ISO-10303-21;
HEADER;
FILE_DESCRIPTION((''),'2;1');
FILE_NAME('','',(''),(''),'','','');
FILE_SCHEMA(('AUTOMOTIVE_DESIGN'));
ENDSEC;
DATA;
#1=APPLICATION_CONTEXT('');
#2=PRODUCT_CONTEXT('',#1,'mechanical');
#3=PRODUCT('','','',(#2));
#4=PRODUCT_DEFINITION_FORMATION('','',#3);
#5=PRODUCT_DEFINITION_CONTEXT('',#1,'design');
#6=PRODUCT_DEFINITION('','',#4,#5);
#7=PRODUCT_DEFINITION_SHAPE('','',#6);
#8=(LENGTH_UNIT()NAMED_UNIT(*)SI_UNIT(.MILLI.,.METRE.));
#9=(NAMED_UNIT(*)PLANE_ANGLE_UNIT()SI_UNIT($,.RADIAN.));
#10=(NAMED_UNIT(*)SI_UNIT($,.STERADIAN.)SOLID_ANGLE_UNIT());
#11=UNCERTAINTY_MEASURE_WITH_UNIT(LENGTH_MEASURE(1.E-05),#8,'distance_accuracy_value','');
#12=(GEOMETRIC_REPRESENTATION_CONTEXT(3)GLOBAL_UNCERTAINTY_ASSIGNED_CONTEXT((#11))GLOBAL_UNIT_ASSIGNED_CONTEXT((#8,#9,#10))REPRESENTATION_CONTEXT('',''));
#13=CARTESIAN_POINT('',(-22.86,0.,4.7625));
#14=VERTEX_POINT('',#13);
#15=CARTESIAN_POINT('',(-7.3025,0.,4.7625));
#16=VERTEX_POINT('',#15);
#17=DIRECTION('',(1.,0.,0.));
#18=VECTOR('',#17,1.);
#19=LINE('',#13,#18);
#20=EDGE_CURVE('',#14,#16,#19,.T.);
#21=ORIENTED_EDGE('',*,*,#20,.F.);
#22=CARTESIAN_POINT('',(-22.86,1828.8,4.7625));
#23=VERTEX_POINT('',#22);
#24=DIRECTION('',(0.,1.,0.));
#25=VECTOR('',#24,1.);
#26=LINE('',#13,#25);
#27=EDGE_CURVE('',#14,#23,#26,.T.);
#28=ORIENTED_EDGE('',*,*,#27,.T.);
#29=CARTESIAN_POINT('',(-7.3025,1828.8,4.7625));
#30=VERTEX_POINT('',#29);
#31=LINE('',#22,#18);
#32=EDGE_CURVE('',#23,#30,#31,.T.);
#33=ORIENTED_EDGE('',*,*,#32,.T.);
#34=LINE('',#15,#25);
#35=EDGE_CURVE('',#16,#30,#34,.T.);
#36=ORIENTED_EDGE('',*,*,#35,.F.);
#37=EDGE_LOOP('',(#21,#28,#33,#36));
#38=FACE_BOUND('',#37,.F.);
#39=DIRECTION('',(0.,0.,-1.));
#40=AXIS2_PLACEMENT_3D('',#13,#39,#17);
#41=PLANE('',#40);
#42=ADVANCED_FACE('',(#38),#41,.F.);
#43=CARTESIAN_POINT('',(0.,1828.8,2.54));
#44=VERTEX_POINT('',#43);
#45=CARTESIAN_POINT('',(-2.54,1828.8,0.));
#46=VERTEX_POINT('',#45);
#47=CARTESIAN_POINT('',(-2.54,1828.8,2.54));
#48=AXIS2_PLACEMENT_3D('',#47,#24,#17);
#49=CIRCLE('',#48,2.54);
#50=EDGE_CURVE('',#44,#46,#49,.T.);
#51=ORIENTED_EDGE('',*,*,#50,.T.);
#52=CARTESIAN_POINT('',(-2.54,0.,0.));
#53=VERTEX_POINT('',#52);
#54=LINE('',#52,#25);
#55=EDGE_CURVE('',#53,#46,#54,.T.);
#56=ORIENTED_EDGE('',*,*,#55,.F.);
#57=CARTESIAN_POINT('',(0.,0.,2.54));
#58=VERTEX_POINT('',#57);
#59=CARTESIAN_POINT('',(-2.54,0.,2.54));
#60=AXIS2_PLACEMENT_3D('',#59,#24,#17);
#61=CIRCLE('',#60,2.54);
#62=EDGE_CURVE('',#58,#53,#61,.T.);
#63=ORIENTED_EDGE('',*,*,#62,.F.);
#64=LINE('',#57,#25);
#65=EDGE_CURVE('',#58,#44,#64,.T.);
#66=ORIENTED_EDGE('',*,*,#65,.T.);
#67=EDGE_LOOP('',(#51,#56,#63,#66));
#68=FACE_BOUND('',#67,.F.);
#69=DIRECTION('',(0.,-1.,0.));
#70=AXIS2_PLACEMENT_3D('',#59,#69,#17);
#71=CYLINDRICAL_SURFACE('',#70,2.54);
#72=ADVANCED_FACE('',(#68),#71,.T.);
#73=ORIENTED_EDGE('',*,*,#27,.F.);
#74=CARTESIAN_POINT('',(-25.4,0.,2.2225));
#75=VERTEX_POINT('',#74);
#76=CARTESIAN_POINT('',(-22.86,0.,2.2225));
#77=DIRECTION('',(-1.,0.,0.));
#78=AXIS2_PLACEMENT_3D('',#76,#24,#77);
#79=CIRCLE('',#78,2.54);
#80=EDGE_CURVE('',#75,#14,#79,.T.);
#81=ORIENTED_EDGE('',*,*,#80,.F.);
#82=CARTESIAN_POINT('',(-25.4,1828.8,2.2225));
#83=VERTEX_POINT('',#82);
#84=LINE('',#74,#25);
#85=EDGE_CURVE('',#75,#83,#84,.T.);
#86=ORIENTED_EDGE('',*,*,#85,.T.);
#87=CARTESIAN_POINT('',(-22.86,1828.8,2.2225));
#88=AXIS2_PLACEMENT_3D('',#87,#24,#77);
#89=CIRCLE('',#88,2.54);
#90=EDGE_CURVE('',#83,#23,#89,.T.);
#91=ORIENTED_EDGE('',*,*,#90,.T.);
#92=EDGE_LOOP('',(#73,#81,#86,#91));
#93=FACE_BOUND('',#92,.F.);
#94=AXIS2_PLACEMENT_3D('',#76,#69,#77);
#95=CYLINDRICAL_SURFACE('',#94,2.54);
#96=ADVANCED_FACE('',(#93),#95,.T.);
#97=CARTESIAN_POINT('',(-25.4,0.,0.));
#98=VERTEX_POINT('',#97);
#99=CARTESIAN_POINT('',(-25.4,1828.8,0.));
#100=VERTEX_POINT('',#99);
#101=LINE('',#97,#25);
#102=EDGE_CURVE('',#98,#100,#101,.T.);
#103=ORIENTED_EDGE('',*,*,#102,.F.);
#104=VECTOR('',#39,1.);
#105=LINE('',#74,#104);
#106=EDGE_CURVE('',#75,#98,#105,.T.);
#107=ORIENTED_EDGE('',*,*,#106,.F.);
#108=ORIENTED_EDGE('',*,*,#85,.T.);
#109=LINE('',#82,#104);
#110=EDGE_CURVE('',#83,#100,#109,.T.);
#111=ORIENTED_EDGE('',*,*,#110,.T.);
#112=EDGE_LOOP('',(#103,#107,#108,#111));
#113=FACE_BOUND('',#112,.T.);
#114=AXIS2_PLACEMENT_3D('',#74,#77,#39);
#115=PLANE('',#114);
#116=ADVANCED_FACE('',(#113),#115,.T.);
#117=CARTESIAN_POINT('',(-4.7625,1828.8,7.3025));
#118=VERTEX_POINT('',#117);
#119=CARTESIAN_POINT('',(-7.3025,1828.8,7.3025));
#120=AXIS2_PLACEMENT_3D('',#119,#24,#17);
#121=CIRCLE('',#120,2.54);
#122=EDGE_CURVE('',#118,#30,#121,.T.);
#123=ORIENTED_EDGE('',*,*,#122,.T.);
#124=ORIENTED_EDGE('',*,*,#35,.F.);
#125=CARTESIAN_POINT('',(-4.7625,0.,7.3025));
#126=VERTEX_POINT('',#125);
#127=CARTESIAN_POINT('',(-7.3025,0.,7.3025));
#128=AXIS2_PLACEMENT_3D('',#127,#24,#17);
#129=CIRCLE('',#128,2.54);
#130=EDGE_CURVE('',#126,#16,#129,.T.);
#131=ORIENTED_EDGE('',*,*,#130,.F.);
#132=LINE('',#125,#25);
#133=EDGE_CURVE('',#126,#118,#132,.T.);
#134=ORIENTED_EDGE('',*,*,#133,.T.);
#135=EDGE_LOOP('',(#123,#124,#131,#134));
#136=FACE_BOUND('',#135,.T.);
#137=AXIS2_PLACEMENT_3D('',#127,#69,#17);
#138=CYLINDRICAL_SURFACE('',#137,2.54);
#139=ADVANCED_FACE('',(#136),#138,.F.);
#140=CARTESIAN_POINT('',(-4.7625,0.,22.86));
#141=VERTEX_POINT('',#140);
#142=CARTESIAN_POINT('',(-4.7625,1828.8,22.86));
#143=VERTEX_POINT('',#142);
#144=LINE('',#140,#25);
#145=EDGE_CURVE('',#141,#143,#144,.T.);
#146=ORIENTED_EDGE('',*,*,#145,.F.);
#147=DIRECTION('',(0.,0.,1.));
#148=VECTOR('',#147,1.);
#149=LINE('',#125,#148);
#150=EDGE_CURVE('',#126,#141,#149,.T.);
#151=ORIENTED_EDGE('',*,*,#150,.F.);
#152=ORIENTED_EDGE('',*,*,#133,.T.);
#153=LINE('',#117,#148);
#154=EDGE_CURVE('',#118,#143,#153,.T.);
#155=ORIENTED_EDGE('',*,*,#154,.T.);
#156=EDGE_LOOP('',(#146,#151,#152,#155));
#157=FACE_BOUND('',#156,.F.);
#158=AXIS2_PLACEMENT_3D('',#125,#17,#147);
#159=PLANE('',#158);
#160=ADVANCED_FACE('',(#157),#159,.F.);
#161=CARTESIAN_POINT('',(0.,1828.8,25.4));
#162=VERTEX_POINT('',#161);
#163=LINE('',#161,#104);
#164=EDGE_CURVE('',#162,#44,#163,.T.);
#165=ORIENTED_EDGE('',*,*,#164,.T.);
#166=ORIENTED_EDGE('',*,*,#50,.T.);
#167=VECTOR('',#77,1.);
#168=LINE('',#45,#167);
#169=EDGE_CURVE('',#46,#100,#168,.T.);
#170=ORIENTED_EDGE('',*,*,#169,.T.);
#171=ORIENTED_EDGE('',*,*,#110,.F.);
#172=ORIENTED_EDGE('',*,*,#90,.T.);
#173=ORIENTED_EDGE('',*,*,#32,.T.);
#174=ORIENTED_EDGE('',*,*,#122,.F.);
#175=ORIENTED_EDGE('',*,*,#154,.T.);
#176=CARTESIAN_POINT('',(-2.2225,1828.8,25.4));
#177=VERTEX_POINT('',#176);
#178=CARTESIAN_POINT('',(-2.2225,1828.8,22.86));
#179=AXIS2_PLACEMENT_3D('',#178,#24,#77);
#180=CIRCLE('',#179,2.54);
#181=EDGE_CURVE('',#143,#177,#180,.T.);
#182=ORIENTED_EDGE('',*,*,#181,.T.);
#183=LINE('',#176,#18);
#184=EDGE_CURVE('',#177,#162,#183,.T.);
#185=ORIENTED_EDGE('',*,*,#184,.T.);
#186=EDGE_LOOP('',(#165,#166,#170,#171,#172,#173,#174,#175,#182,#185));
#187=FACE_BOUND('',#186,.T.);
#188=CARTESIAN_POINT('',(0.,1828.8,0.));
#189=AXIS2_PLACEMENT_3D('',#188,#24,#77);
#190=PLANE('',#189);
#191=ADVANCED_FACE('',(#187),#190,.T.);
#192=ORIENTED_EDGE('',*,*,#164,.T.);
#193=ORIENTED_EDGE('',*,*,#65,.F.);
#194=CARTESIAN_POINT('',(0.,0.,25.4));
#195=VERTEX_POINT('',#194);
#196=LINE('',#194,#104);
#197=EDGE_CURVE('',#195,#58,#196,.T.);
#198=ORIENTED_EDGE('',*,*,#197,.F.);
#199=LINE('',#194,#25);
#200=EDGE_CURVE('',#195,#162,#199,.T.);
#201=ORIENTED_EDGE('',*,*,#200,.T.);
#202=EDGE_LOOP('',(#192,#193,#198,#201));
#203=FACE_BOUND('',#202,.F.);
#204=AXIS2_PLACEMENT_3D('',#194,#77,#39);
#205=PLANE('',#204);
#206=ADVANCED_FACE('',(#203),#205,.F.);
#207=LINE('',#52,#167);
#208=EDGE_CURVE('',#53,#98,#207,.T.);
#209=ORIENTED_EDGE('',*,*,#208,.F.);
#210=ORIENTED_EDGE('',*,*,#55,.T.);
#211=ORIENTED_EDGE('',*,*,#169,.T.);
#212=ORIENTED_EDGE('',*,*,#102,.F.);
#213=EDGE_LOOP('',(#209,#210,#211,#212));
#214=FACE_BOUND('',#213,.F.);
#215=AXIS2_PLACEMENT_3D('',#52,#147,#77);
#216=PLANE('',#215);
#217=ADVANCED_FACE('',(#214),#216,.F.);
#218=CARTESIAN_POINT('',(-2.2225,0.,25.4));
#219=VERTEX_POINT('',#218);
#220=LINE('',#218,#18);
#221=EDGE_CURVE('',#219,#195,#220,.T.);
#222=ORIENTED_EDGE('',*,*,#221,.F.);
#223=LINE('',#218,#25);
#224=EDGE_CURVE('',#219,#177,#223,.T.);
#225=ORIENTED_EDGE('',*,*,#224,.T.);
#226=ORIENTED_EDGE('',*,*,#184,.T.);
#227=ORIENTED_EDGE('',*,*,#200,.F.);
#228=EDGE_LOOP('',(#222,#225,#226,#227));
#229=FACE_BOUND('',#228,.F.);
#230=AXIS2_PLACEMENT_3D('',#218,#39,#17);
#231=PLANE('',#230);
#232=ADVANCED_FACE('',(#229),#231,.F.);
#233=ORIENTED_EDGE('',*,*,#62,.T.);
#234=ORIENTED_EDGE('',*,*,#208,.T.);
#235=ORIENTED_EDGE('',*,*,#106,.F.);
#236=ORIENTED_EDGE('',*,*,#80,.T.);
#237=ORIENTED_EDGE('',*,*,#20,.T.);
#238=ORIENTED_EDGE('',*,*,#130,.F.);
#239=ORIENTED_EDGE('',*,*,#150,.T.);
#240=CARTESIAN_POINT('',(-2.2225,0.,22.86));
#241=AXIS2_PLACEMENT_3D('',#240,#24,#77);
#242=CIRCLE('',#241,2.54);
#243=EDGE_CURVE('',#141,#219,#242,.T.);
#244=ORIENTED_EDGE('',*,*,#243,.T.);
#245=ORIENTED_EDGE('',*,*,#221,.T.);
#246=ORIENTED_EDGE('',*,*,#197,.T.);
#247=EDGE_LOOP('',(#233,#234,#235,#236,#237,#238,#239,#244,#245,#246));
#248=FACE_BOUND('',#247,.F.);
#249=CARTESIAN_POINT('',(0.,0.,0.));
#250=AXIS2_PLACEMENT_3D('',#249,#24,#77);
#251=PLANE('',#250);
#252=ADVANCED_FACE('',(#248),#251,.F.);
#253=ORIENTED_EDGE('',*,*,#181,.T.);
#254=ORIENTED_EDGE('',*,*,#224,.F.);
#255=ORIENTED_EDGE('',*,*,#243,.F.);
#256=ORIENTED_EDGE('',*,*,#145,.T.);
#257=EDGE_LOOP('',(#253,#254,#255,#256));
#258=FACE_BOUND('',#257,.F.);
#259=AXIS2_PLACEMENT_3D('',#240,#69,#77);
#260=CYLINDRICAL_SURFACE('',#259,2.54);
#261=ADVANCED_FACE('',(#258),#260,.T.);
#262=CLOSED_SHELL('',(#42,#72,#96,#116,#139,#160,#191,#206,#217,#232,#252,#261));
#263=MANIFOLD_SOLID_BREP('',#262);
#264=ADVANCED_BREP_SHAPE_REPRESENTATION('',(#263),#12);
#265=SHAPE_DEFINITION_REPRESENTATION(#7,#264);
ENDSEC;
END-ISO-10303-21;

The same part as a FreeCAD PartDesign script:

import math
import FreeCAD as App
import Part
import Sketcher

V = App.Vector
Q = App.Units.Quantity

doc = App.newDocument("Part")
body = doc.addObject("PartDesign::Body", "Body")

# Sketch on XZ plane
sketch1 = body.newObject("Sketcher::SketchObject", "Sketch")
sketch1.AttachmentSupport = (doc.getObject("XZ_Plane"), [""])
sketch1.MapMode = "FlatFace"
sketch1.addGeometry(Part.ArcOfCircle(Part.Circle(V(-2.5, 2.5, 0), V(0, 0, 1), 2.5), math.radians(-90), math.radians(0)), False)
sketch1.addGeometry(Part.LineSegment(V(-2.5, 0, 0), V(-25.4, 0, 0)), False)
sketch1.addGeometry(Part.LineSegment(V(-25.4, 0, 0), V(-25.4, 2.2, 0)), False)
sketch1.addGeometry(Part.ArcOfCircle(Part.Circle(V(-22.9, 2.2, 0), V(0, 0, 1), 2.5), math.radians(90), math.radians(180)), False)
sketch1.addGeometry(Part.LineSegment(V(-22.9, 4.8, 0), V(-7.3, 4.8, 0)), False)
sketch1.addGeometry(Part.ArcOfCircle(Part.Circle(V(-7.3, 7.3, 0), V(0, 0, 1), 2.5), math.radians(-90), math.radians(0)), False)
sketch1.addGeometry(Part.LineSegment(V(-4.8, 7.3, 0), V(-4.8, 22.9, 0)), False)
sketch1.addGeometry(Part.ArcOfCircle(Part.Circle(V(-2.2, 22.9, 0), V(0, 0, 1), 2.5), math.radians(90), math.radians(180)), False)
sketch1.addGeometry(Part.LineSegment(V(-2.2, 25.4, 0), V(0, 25.4, 0)), False)
sketch1.addGeometry(Part.LineSegment(V(0, 25.4, 0), V(0, 2.5, 0)), False)
sketch1.addConstraint(Sketcher.Constraint("Tangent", 0, 1, 1, 1))
sketch1.addConstraint(Sketcher.Constraint("Coincident", 1, 2, 2, 1))
sketch1.addConstraint(Sketcher.Constraint("Tangent", 2, 2, 3, 2))
sketch1.addConstraint(Sketcher.Constraint("Tangent", 3, 1, 4, 1))
sketch1.addConstraint(Sketcher.Constraint("Tangent", 4, 2, 5, 1))
sketch1.addConstraint(Sketcher.Constraint("Tangent", 5, 2, 6, 1))
sketch1.addConstraint(Sketcher.Constraint("Tangent", 6, 2, 7, 2))
sketch1.addConstraint(Sketcher.Constraint("Tangent", 7, 1, 8, 1))
sketch1.addConstraint(Sketcher.Constraint("Coincident", 8, 2, 9, 1))
sketch1.addConstraint(Sketcher.Constraint("Tangent", 9, 2, 0, 2))
sketch1.addConstraint(Sketcher.Constraint("Horizontal", 1))
sketch1.addConstraint(Sketcher.Constraint("Vertical", 2))
sketch1.addConstraint(Sketcher.Constraint("Horizontal", 4))
sketch1.addConstraint(Sketcher.Constraint("Vertical", 6))
sketch1.addConstraint(Sketcher.Constraint("Horizontal", 8))
sketch1.addConstraint(Sketcher.Constraint("Vertical", 9))
sketch1.addConstraint(Sketcher.Constraint("Equal", 0, 3))
sketch1.addConstraint(Sketcher.Constraint("Equal", 3, 5))
sketch1.addConstraint(Sketcher.Constraint("Equal", 5, 7))
sketch1.addConstraint(Sketcher.Constraint("PointOnObject", 0, 1, -1))
sketch1.addConstraint(Sketcher.Constraint("PointOnObject", 8, 2, -2))
sketch1.addConstraint(Sketcher.Constraint("Equal", 8, 2))
sketch1.addConstraint(Sketcher.Constraint("Equal", 4, 6))
sketch1.addConstraint(Sketcher.Constraint("Radius", 0, Q("0.1 in")))
sketch1.addConstraint(Sketcher.Constraint("DistanceX", 1, 2, -1, 1, Q("1 in")))
sketch1.addConstraint(Sketcher.Constraint("DistanceY", -1, 1, 3, 1, Q("0.1875 in")))
pad1 = body.newObject("PartDesign::Pad", "Pad")
pad1.Profile = sketch1
pad1.Length = Q("72 in")
pad1.Reversed = True

doc.recompute()
